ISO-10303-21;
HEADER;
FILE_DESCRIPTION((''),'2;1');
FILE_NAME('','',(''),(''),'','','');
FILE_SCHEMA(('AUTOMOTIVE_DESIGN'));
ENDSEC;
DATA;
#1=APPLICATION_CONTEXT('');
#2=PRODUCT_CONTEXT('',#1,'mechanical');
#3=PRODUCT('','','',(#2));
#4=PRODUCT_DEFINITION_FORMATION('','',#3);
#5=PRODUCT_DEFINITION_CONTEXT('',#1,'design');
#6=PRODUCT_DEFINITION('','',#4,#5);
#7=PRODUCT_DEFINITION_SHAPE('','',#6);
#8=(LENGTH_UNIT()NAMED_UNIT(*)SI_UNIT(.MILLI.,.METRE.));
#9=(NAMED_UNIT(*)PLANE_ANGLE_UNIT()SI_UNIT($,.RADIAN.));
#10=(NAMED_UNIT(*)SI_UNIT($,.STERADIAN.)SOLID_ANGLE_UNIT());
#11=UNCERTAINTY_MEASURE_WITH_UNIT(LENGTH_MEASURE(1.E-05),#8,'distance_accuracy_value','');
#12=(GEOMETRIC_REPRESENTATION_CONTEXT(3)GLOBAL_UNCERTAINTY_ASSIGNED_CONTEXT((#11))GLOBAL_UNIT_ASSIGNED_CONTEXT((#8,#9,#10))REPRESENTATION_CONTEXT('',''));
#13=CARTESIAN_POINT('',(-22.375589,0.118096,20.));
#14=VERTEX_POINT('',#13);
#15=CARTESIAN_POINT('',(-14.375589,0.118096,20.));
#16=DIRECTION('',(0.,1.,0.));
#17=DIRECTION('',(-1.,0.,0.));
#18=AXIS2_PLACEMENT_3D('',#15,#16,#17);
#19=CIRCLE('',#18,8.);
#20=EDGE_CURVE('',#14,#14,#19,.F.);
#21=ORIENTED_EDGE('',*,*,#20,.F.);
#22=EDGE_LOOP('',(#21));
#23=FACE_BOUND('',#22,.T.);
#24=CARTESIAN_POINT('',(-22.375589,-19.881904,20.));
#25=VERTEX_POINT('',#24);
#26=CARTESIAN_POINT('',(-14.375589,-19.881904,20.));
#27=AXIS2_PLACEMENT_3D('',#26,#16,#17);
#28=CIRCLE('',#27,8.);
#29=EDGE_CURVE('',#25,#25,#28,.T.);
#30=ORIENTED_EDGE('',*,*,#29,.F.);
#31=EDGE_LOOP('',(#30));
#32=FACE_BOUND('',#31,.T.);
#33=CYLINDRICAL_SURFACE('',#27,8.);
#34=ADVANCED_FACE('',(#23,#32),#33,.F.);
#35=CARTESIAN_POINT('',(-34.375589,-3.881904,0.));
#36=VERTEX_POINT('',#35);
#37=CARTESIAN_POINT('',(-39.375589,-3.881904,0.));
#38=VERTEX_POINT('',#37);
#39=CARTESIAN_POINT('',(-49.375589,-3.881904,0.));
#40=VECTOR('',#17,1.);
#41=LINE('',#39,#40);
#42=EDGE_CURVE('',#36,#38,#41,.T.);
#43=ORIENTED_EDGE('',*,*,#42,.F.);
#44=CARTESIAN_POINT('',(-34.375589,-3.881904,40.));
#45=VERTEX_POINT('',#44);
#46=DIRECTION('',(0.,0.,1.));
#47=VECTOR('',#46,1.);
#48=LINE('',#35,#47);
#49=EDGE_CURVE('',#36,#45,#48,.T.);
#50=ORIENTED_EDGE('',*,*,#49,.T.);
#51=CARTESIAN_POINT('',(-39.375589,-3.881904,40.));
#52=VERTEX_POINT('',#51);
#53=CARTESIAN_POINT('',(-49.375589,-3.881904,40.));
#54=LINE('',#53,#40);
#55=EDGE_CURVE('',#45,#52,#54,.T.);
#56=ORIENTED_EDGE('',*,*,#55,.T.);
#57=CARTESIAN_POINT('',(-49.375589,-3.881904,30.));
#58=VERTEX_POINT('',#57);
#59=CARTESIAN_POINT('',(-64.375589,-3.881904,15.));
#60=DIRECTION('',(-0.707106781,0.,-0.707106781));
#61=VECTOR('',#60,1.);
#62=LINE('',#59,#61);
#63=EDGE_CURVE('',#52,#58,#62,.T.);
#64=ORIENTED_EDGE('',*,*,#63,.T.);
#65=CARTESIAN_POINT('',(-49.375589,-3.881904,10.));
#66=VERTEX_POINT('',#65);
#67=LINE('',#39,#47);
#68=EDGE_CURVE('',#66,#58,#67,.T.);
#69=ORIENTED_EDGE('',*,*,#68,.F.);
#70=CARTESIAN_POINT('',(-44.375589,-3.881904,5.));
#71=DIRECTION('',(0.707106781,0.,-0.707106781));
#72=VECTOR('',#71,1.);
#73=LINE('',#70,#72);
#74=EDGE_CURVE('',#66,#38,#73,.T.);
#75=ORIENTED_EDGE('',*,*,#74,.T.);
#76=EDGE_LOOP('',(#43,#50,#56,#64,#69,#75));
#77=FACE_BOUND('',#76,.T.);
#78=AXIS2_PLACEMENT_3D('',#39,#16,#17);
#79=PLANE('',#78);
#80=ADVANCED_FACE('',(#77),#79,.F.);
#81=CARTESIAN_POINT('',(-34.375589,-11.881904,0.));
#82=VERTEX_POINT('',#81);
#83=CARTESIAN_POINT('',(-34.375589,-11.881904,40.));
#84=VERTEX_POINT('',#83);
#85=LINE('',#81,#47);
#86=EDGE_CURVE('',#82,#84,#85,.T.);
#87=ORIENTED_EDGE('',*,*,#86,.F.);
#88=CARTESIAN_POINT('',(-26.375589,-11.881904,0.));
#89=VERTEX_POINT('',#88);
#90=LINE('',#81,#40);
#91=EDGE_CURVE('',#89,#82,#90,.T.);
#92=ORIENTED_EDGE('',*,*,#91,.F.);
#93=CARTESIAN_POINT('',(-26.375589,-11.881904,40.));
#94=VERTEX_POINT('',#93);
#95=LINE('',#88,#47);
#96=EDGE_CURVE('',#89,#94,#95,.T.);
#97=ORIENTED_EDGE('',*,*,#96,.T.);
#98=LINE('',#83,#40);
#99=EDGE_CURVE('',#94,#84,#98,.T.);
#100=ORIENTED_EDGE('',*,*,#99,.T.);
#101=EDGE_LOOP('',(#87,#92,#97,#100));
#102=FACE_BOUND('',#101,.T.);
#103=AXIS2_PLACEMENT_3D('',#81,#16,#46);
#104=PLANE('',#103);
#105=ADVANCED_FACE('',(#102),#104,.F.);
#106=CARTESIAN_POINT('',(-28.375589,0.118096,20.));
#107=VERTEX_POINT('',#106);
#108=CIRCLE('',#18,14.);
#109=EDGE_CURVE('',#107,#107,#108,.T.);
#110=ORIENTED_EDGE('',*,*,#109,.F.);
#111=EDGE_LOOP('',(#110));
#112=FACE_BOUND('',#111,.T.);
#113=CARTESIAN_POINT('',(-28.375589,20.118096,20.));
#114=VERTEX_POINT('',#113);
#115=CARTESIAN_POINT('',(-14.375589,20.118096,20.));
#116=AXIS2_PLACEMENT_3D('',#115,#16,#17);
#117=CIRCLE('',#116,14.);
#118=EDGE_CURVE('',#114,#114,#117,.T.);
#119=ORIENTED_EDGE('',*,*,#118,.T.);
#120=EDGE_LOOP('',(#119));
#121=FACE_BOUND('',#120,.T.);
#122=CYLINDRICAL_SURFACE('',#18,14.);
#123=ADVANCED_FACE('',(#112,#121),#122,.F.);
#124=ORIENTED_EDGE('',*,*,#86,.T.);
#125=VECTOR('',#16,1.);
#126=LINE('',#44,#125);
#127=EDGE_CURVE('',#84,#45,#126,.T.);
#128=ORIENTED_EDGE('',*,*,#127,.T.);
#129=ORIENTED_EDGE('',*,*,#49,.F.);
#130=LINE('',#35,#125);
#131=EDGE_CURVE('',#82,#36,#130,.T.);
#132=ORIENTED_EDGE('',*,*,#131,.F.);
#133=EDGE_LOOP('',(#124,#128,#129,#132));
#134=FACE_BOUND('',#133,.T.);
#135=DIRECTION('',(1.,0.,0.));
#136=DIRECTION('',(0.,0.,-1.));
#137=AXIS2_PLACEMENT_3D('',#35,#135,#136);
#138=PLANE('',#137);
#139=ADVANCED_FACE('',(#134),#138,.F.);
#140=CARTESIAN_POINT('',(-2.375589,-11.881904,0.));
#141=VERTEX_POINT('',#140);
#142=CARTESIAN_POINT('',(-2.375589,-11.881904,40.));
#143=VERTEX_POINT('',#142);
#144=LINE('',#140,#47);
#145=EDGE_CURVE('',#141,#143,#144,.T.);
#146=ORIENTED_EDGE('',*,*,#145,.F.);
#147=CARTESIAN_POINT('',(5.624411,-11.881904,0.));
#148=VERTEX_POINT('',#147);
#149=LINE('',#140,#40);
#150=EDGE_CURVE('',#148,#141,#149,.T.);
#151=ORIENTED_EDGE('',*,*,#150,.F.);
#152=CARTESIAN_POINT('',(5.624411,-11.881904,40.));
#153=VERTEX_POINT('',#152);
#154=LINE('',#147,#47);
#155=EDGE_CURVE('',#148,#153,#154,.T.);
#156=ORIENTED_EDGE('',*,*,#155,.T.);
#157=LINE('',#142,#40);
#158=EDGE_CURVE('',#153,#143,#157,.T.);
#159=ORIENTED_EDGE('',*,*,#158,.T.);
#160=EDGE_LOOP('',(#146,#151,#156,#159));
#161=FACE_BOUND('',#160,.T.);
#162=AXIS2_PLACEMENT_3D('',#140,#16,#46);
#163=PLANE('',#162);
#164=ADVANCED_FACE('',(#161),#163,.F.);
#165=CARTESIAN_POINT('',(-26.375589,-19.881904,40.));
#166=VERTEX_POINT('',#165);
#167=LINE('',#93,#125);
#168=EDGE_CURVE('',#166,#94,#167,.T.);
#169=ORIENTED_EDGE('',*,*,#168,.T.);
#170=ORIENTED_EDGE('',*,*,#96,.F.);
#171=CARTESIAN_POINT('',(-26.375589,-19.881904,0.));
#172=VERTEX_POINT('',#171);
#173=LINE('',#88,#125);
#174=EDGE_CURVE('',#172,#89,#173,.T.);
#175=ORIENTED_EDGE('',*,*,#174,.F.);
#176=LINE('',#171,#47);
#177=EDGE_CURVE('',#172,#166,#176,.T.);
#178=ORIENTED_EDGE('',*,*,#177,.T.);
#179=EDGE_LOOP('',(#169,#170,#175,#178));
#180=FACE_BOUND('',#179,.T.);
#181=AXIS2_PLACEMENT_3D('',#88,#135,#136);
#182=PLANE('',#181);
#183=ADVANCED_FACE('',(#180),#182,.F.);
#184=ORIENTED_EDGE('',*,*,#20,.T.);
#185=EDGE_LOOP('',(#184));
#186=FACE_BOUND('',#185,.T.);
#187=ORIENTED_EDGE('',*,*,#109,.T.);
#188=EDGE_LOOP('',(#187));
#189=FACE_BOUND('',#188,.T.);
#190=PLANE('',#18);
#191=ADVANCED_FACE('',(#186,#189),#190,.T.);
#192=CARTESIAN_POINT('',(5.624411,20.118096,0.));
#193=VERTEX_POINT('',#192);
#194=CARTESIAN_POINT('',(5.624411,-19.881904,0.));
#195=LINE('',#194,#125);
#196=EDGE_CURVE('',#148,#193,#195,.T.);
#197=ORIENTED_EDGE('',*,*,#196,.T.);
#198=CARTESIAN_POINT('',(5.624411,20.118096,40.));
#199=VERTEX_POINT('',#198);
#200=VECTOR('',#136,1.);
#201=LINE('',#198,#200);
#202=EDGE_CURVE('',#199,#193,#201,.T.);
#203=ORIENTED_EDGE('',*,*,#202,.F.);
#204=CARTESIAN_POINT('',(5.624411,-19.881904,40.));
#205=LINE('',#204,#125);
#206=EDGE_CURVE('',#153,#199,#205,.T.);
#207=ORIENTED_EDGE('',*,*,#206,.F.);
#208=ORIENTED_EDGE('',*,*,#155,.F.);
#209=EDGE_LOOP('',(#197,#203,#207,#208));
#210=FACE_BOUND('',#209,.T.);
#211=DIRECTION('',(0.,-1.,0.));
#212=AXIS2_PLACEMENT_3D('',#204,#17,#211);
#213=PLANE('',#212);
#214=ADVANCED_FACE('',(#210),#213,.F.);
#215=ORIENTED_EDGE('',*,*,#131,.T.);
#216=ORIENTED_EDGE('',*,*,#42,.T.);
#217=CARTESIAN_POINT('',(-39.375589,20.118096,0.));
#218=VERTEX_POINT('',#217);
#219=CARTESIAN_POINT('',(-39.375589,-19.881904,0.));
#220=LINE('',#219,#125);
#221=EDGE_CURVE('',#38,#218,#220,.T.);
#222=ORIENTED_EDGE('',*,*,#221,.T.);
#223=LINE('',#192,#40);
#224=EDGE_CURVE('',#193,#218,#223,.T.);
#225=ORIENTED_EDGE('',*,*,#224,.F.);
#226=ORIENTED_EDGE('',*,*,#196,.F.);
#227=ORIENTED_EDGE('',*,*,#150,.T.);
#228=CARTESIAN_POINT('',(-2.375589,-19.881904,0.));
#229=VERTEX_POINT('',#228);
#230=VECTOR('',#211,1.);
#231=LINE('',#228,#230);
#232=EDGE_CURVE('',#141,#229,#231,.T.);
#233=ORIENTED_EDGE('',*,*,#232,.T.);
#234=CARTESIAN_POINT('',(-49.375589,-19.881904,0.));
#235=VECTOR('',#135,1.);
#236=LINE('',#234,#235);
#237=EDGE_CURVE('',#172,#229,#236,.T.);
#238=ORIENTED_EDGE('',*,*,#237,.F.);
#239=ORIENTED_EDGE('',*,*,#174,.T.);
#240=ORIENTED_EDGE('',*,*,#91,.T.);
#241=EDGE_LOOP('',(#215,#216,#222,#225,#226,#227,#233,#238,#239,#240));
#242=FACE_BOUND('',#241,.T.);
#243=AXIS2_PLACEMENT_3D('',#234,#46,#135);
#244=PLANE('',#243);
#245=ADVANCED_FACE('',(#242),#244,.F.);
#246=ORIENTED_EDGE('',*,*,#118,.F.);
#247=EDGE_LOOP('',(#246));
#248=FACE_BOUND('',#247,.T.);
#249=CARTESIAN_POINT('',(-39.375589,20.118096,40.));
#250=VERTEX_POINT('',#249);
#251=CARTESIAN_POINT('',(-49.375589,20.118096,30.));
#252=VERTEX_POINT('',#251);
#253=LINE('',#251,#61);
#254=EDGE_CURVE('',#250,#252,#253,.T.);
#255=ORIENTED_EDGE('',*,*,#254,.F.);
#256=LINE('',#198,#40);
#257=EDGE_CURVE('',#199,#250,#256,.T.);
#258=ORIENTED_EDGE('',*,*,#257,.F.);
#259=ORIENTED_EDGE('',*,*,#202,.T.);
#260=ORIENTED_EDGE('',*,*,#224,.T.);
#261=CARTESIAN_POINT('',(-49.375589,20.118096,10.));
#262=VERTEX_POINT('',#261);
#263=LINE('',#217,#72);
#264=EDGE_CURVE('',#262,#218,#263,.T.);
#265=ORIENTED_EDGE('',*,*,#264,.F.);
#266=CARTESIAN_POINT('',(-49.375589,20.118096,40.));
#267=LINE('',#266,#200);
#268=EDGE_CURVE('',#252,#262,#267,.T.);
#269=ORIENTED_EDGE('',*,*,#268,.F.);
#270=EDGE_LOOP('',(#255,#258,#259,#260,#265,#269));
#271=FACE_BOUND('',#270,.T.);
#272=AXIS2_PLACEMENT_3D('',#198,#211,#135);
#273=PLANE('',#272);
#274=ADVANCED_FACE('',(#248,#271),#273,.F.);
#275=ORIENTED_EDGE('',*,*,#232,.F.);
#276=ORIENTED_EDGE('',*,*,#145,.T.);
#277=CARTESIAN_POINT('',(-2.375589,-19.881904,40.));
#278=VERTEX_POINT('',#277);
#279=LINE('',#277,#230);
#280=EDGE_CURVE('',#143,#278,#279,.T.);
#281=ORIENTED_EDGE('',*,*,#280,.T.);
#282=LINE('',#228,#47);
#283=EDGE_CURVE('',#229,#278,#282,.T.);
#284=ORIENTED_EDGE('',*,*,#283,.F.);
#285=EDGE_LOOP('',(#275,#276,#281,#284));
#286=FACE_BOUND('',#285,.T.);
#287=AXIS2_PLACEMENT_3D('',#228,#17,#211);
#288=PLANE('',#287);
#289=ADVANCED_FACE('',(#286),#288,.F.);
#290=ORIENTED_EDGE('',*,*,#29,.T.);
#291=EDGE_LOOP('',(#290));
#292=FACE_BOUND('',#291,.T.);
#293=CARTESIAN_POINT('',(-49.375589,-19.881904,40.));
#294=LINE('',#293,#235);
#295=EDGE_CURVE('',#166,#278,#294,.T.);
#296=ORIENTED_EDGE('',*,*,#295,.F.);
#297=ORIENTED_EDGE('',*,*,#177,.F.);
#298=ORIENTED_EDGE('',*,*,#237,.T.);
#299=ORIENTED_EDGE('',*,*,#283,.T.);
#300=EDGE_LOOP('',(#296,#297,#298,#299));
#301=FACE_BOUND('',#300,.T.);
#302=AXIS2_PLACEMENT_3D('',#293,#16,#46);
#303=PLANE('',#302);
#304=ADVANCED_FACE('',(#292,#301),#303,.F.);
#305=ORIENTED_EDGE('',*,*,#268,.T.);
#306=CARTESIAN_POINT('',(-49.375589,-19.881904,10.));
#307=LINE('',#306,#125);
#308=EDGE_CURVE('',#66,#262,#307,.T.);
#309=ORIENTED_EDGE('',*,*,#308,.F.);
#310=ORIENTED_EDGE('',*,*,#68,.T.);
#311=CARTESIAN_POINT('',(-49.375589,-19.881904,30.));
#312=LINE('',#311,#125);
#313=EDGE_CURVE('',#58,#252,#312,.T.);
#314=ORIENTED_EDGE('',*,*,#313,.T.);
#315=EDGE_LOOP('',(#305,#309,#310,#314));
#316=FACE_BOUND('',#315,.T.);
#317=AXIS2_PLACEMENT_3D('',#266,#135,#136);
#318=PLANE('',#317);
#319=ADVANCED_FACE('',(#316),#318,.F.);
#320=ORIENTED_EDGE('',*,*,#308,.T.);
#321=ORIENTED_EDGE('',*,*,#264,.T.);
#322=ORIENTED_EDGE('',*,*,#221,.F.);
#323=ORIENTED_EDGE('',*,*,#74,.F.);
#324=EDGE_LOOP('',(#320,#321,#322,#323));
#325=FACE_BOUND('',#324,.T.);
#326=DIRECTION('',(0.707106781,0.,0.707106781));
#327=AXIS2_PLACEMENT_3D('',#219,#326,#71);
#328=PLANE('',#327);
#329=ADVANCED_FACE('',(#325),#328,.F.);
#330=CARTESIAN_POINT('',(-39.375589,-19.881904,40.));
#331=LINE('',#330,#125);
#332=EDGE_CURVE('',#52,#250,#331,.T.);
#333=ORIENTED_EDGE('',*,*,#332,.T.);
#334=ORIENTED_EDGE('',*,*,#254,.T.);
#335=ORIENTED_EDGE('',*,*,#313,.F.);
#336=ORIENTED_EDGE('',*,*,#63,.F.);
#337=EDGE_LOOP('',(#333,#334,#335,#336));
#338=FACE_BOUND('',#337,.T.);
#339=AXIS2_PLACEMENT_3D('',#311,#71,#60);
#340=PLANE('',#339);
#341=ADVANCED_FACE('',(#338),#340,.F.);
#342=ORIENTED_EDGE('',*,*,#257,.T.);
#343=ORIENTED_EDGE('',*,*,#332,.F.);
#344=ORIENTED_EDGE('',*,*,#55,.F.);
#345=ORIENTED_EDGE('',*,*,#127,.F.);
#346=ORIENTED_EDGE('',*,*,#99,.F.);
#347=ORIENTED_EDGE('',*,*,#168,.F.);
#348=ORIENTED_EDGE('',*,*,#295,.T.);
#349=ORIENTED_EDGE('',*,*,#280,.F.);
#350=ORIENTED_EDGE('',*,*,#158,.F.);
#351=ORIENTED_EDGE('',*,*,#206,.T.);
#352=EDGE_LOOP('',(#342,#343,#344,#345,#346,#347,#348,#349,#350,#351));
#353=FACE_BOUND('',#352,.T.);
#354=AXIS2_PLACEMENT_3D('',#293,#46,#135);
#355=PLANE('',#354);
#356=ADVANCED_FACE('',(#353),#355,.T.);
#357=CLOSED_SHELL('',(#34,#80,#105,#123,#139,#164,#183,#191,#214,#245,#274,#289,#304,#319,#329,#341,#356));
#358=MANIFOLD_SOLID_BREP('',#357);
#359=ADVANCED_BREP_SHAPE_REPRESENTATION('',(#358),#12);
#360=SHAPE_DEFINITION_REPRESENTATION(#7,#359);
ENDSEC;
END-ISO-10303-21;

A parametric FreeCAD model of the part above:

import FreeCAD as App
import Part
import Sketcher
Q = App.Units.Quantity


def add_polygon(sketch, points):
    """Adds a closed chain of lines whose ends are joined by coincident constraints."""
    first, n = sketch.GeometryCount, len(points)
    for a, b in zip(points, points[1:] + points[:1]):
        sketch.addGeometry(Part.LineSegment(App.Vector(*a, 0), App.Vector(*b, 0)), False)
    for i in range(n):
        sketch.addConstraint(Sketcher.Constraint("Coincident", first + i, 2, first + (i + 1) % n, 1))

doc = App.newDocument("Part")
body = doc.addObject("PartDesign::Body", "Body")

# Sketch on XY plane
sketch1 = body.newObject("Sketcher::SketchObject", "Sketch")
sketch1.AttachmentSupport = (doc.getObject("XY_Plane"), [""])
sketch1.MapMode = "FlatFace"
add_polygon(sketch1, [(-49, 20), (-49, -20), (6, -20), (6, 20)])  # lines 0-3
sketch1.addConstraint(Sketcher.Constraint("Vertical", 0))
sketch1.addConstraint(Sketcher.Constraint("Horizontal", 1))
sketch1.addConstraint(Sketcher.Constraint("Vertical", 2))
sketch1.addConstraint(Sketcher.Constraint("Horizontal", 3))
sketch1.addConstraint(Sketcher.Constraint("DistanceX", 1, 1, 1, 2, Q("55 mm")))
sketch1.addConstraint(Sketcher.Constraint("DistanceY", 0, 2, 0, 1, Q("40 mm")))
sketch1.addConstraint(Sketcher.Constraint("DistanceX", 0, 2, -1, 1, Q("49.375589 mm")))
sketch1.addConstraint(Sketcher.Constraint("DistanceY", 0, 2, -1, 1, Q("19.881904 mm")))
pad1 = body.newObject("PartDesign::Pad", "Pad")
pad1.Profile = sketch1
pad1.Length = 40

# Sketch on XY plane
sketch2 = body.newObject("Sketcher::SketchObject", "Sketch001")
sketch2.AttachmentSupport = (doc.getObject("XY_Plane"), [""])
sketch2.MapMode = "FlatFace"
sketch2.AttachmentOffset = App.Placement(App.Vector(0, 0, 40), App.Rotation())
add_polygon(sketch2, [(-2, -12), (-2, -20), (6, -20), (6, -12)])  # lines 0-3
sketch2.addConstraint(Sketcher.Constraint("Vertical", 0))
sketch2.addConstraint(Sketcher.Constraint("Horizontal", 1))
sketch2.addConstraint(Sketcher.Constraint("Vertical", 2))
sketch2.addConstraint(Sketcher.Constraint("Horizontal", 3))
sketch2.addConstraint(Sketcher.Constraint("Equal", 3, 0))
sketch2.addConstraint(Sketcher.Constraint("DistanceX", 1, 1, 1, 2, Q("8 mm")))
sketch2.addConstraint(Sketcher.Constraint("DistanceX", 0, 2, -1, 1, Q("2.375589 mm")))
sketch2.addConstraint(Sketcher.Constraint("DistanceY", 0, 2, -1, 1, Q("19.881904 mm")))
pocket1 = body.newObject("PartDesign::Pocket", "Pocket")
pocket1.Profile = sketch2
pocket1.Type = "ThroughAll"

# Sketch on XY plane
sketch3 = body.newObject("Sketcher::SketchObject", "Sketch002")
sketch3.AttachmentSupport = (doc.getObject("XY_Plane"), [""])
sketch3.MapMode = "FlatFace"
sketch3.AttachmentOffset = App.Placement(App.Vector(0, 0, 40), App.Rotation())
add_polygon(sketch3, [(-34, -4), (-49, -4), (-49, -20), (-26, -20), (-26, -12), (-34, -12)])  # lines 0-5
sketch3.addConstraint(Sketcher.Constraint("Horizontal", 0))
sketch3.addConstraint(Sketcher.Constraint("Vertical", 1))
sketch3.addConstraint(Sketcher.Constraint("Horizontal", 2))
sketch3.addConstraint(Sketcher.Constraint("Vertical", 3))
sketch3.addConstraint(Sketcher.Constraint("Horizontal", 4))
sketch3.addConstraint(Sketcher.Constraint("Vertical", 5))
sketch3.addConstraint(Sketcher.Constraint("Equal", 4, 3))
sketch3.addConstraint(Sketcher.Constraint("Equal", 3, 5))
sketch3.addConstraint(Sketcher.Constraint("DistanceX", 0, 2, 0, 1, Q("15 mm")))
sketch3.addConstraint(Sketcher.Constraint("DistanceX", 2, 1, 2, 2, Q("23 mm")))
sketch3.addConstraint(Sketcher.Constraint("DistanceX", 0, 2, -1, 1, Q("49.375589 mm")))
sketch3.addConstraint(Sketcher.Constraint("DistanceY", 0, 2, -1, 1, Q("3.881904 mm")))
pocket2 = body.newObject("PartDesign::Pocket", "Pocket001")
pocket2.Profile = sketch3
pocket2.Length = 40

# Sketch on XZ plane
sketch4 = body.newObject("Sketcher::SketchObject", "Sketch003")
sketch4.AttachmentSupport = (doc.getObject("XZ_Plane"), [""])
sketch4.MapMode = "FlatFace"
sketch4.AttachmentOffset = App.Placement(App.Vector(0, 0, -20.118096), App.Rotation())
add_polygon(sketch4, [(-39, 0), (-49, 0), (-49, 10)])  # lines 0-2
sketch4.addConstraint(Sketcher.Constraint("Horizontal", 0))
sketch4.addConstraint(Sketcher.Constraint("Vertical", 1))
sketch4.addConstraint(Sketcher.Constraint("PointOnObject", 0, 2, -1))
sketch4.addConstraint(Sketcher.Constraint("Equal", 0, 1))
sketch4.addConstraint(Sketcher.Constraint("DistanceX", 0, 2, 0, 1, Q("10 mm")))
sketch4.addConstraint(Sketcher.Constraint("DistanceX", 0, 2, -1, 1, Q("49.375589 mm")))
pocket3 = body.newObject("PartDesign::Pocket", "Pocket002")
pocket3.Profile = sketch4
pocket3.Length = 40
pocket3.Reversed = True

# Sketch on XZ plane
sketch5 = body.newObject("Sketcher::SketchObject", "Sketch004")
sketch5.AttachmentSupport = (doc.getObject("XZ_Plane"), [""])
sketch5.MapMode = "FlatFace"
sketch5.AttachmentOffset = App.Placement(App.Vector(0, 0, -20.118096), App.Rotation())
add_polygon(sketch5, [(-39, 40), (-49, 30), (-49, 40)])  # lines 0-2
sketch5.addConstraint(Sketcher.Constraint("Vertical", 1))
sketch5.addConstraint(Sketcher.Constraint("Horizontal", 2))
sketch5.addConstraint(Sketcher.Constraint("Equal", 2, 1))
sketch5.addConstraint(Sketcher.Constraint("DistanceX", 2, 1, 2, 2, Q("10 mm")))
sketch5.addConstraint(Sketcher.Constraint("DistanceY", -1, 1, 0, 2, Q("30 mm")))
sketch5.addConstraint(Sketcher.Constraint("DistanceX", 0, 2, -1, 1, Q("49.375589 mm")))
pocket4 = body.newObject("PartDesign::Pocket", "Pocket003")
pocket4.Profile = sketch5
pocket4.Length = 40
pocket4.Reversed = True

# Sketch on XZ plane
sketch6 = body.newObject("Sketcher::SketchObject", "Sketch005")
sketch6.AttachmentSupport = (doc.getObject("XZ_Plane"), [""])
sketch6.MapMode = "FlatFace"
sketch6.AttachmentOffset = App.Placement(App.Vector(0, 0, -20.118096), App.Rotation())
sketch6.addGeometry(Part.Circle(App.Vector(-14, 20, 0), App.Vector(0, 0, 1), 8), False)
sketch6.addConstraint(Sketcher.Constraint("Diameter", 0, Q("16 mm")))
sketch6.addConstraint(Sketcher.Constraint("DistanceY", -1, 1, 0, 3, Q("20 mm")))
sketch6.addConstraint(Sketcher.Constraint("DistanceX", 0, 3, -1, 1, Q("14.375589 mm")))
pocket5 = body.newObject("PartDesign::Pocket", "Pocket004")
pocket5.Profile = sketch6
pocket5.Type = "ThroughAll"
pocket5.Reversed = True

# Sketch on XZ plane
sketch7 = body.newObject("Sketcher::SketchObject", "Sketch006")
sketch7.AttachmentSupport = (doc.getObject("XZ_Plane"), [""])
sketch7.MapMode = "FlatFace"
sketch7.AttachmentOffset = App.Placement(App.Vector(0, 0, -20.118096), App.Rotation())
sketch7.addGeometry(Part.Circle(App.Vector(-14, 20, 0), App.Vector(0, 0, 1), 14), False)
sketch7.addConstraint(Sketcher.Constraint("Diameter", 0, Q("28 mm")))
sketch7.addConstraint(Sketcher.Constraint("DistanceY", -1, 1, 0, 3, Q("20 mm")))
sketch7.addConstraint(Sketcher.Constraint("DistanceX", 0, 3, -1, 1, Q("14.375589 mm")))
pocket6 = body.newObject("PartDesign::Pocket", "Pocket005")
pocket6.Profile = sketch7
pocket6.Length = 20
pocket6.Reversed = True

doc.recompute()
